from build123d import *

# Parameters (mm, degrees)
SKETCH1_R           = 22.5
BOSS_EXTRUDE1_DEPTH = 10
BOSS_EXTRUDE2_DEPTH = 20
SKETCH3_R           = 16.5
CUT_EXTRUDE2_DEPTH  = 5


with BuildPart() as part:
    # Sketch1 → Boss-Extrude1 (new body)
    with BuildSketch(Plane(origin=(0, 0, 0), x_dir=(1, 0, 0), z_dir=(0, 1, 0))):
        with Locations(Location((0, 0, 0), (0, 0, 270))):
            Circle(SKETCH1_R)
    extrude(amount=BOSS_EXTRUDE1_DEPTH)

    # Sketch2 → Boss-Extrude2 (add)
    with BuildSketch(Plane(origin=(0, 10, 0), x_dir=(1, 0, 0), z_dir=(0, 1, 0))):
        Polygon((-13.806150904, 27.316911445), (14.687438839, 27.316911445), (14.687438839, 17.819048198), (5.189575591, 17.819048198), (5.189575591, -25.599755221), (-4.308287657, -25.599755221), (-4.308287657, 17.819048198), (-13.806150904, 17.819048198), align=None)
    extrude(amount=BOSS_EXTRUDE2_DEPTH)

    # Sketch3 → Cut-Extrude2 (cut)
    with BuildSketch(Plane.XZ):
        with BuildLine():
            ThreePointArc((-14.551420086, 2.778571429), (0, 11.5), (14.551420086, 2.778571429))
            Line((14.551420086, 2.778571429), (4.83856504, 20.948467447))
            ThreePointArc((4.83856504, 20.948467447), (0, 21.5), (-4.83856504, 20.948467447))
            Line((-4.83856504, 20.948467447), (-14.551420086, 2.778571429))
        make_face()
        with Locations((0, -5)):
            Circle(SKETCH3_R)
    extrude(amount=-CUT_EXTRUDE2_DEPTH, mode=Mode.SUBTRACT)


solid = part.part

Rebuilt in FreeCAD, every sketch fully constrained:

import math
import FreeCAD as App
import Part
import Sketcher
from FreeCAD import Vector

doc = App.newDocument("Part")
body = doc.addObject("PartDesign::Body", "Body")

# Sketch on XZ plane
sketch1 = doc.addObject("Sketcher::SketchObject", "Sketch")
body.addObject(sketch1)
sketch1.AttachmentSupport = (doc.XZ_Plane, [""])
sketch1.MapMode = "FlatFace"
sketch1.addGeometry(Part.Circle(Vector(0, 0, 0), Vector(0, 0, 1), 22), False)
sketch1.addConstraint([
    Sketcher.Constraint("Coincident", 0, 3, -1, 1),
    Sketcher.Constraint("Diameter", 0, 45.0),
])
pad1 = doc.addObject("PartDesign::Pad", "Pad")
body.addObject(pad1)
pad1.Profile = sketch1
pad1.Length = 10
pad1.Reversed = True

# Sketch on XZ plane
sketch2 = doc.addObject("Sketcher::SketchObject", "Sketch001")
body.addObject(sketch2)
sketch2.AttachmentSupport = (doc.XZ_Plane, [""])
sketch2.MapMode = "FlatFace"
sketch2.AttachmentOffset = App.Placement(Vector(0, 0, -10), App.Rotation())
sketch2.addGeometry([
    Part.LineSegment(Vector(15, -27, 0), Vector(-14, -27, 0)),  # 0
    Part.LineSegment(Vector(-14, -27, 0), Vector(-14, -18, 0)),  # 1
    Part.LineSegment(Vector(-14, -18, 0), Vector(-4, -18, 0)),  # 2
    Part.LineSegment(Vector(-4, -18, 0), Vector(-4, 26, 0)),  # 3
    Part.LineSegment(Vector(-4, 26, 0), Vector(5, 26, 0)),  # 4
    Part.LineSegment(Vector(5, 26, 0), Vector(5, -18, 0)),  # 5
    Part.LineSegment(Vector(5, -18, 0), Vector(15, -18, 0)),  # 6
    Part.LineSegment(Vector(15, -18, 0), Vector(15, -27, 0)),  # 7
], False)
sketch2.addConstraint([
    Sketcher.Constraint("Coincident", 0, 2, 1, 1),
    Sketcher.Constraint("Coincident", 1, 2, 2, 1),
    Sketcher.Constraint("Coincident", 2, 2, 3, 1),
    Sketcher.Constraint("Coincident", 3, 2, 4, 1),
    Sketcher.Constraint("Coincident", 4, 2, 5, 1),
    Sketcher.Constraint("Coincident", 5, 2, 6, 1),
    Sketcher.Constraint("Coincident", 6, 2, 7, 1),
    Sketcher.Constraint("Coincident", 7, 2, 0, 1),
    Sketcher.Constraint("Horizontal", 0),
    Sketcher.Constraint("Vertical", 1),
    Sketcher.Constraint("Horizontal", 2),
    Sketcher.Constraint("Vertical", 3),
    Sketcher.Constraint("Horizontal", 4),
    Sketcher.Constraint("Vertical", 5),
    Sketcher.Constraint("Horizontal", 6),
    Sketcher.Constraint("Vertical", 7),
    Sketcher.Constraint("Horizontal", 2, 2, 5, 2),
    Sketcher.Constraint("Equal", 2, 4),
    Sketcher.Constraint("Equal", 4, 6),
    Sketcher.Constraint("Equal", 6, 1),
    Sketcher.Constraint("DistanceX", 0, 2, 0, 1, 28.49359),
    Sketcher.Constraint("DistanceY", 3, 1, 3, 2, 43.418803),
    Sketcher.Constraint("DistanceX", 0, 2, -1, 1, 13.806151),
    Sketcher.Constraint("DistanceY", 0, 2, -1, 1, 27.316911),
])
pad2 = doc.addObject("PartDesign::Pad", "Pad001")
body.addObject(pad2)
pad2.Profile = sketch2
pad2.Length = 20
pad2.Reversed = True

# Sketch on XZ plane
sketch3 = doc.addObject("Sketcher::SketchObject", "Sketch002")
body.addObject(sketch3)
sketch3.AttachmentSupport = (doc.XZ_Plane, [""])
sketch3.MapMode = "FlatFace"
sketch3.addGeometry([
    Part.LineSegment(Vector(15, 3, 0), Vector(5, 21, 0)),
    Part.ArcOfCircle(Part.Circle(Vector(0, 0, 0), Vector(0, 0, 1), 22), math.radians(77), math.radians(103)),
    Part.LineSegment(Vector(-5, 21, 0), Vector(-15, 3, 0)),
    Part.ArcOfCircle(Part.Circle(Vector(0, -5, 0), Vector(0, 0, 1), 16), math.radians(152), math.radians(388)),
], False)
sketch3.addConstraint([
    Sketcher.Constraint("Coincident", 0, 2, 1, 1),
    Sketcher.Constraint("Coincident", 1, 2, 2, 1),
    Sketcher.Constraint("Tangent", 2, 2, 3, 1),
    Sketcher.Constraint("Tangent", 3, 2, 0, 1),
    Sketcher.Constraint("Coincident", 1, 3, -1, 1),
    Sketcher.Constraint("Symmetric", 2, 2, 3, 2, -2),
    Sketcher.Constraint("Radius", 1, 21.5),
    Sketcher.Constraint("Radius", 3, 16.5),
    Sketcher.Constraint("DistanceY", 3, 3, -1, 1, 5.0),
    Sketcher.Constraint("DistanceX", 2, 2, -1, 1, 14.55142),
])
pocket1 = doc.addObject("PartDesign::Pocket", "Pocket")
body.addObject(pocket1)
pocket1.Profile = sketch3
pocket1.Length = 5

doc.recompute()
